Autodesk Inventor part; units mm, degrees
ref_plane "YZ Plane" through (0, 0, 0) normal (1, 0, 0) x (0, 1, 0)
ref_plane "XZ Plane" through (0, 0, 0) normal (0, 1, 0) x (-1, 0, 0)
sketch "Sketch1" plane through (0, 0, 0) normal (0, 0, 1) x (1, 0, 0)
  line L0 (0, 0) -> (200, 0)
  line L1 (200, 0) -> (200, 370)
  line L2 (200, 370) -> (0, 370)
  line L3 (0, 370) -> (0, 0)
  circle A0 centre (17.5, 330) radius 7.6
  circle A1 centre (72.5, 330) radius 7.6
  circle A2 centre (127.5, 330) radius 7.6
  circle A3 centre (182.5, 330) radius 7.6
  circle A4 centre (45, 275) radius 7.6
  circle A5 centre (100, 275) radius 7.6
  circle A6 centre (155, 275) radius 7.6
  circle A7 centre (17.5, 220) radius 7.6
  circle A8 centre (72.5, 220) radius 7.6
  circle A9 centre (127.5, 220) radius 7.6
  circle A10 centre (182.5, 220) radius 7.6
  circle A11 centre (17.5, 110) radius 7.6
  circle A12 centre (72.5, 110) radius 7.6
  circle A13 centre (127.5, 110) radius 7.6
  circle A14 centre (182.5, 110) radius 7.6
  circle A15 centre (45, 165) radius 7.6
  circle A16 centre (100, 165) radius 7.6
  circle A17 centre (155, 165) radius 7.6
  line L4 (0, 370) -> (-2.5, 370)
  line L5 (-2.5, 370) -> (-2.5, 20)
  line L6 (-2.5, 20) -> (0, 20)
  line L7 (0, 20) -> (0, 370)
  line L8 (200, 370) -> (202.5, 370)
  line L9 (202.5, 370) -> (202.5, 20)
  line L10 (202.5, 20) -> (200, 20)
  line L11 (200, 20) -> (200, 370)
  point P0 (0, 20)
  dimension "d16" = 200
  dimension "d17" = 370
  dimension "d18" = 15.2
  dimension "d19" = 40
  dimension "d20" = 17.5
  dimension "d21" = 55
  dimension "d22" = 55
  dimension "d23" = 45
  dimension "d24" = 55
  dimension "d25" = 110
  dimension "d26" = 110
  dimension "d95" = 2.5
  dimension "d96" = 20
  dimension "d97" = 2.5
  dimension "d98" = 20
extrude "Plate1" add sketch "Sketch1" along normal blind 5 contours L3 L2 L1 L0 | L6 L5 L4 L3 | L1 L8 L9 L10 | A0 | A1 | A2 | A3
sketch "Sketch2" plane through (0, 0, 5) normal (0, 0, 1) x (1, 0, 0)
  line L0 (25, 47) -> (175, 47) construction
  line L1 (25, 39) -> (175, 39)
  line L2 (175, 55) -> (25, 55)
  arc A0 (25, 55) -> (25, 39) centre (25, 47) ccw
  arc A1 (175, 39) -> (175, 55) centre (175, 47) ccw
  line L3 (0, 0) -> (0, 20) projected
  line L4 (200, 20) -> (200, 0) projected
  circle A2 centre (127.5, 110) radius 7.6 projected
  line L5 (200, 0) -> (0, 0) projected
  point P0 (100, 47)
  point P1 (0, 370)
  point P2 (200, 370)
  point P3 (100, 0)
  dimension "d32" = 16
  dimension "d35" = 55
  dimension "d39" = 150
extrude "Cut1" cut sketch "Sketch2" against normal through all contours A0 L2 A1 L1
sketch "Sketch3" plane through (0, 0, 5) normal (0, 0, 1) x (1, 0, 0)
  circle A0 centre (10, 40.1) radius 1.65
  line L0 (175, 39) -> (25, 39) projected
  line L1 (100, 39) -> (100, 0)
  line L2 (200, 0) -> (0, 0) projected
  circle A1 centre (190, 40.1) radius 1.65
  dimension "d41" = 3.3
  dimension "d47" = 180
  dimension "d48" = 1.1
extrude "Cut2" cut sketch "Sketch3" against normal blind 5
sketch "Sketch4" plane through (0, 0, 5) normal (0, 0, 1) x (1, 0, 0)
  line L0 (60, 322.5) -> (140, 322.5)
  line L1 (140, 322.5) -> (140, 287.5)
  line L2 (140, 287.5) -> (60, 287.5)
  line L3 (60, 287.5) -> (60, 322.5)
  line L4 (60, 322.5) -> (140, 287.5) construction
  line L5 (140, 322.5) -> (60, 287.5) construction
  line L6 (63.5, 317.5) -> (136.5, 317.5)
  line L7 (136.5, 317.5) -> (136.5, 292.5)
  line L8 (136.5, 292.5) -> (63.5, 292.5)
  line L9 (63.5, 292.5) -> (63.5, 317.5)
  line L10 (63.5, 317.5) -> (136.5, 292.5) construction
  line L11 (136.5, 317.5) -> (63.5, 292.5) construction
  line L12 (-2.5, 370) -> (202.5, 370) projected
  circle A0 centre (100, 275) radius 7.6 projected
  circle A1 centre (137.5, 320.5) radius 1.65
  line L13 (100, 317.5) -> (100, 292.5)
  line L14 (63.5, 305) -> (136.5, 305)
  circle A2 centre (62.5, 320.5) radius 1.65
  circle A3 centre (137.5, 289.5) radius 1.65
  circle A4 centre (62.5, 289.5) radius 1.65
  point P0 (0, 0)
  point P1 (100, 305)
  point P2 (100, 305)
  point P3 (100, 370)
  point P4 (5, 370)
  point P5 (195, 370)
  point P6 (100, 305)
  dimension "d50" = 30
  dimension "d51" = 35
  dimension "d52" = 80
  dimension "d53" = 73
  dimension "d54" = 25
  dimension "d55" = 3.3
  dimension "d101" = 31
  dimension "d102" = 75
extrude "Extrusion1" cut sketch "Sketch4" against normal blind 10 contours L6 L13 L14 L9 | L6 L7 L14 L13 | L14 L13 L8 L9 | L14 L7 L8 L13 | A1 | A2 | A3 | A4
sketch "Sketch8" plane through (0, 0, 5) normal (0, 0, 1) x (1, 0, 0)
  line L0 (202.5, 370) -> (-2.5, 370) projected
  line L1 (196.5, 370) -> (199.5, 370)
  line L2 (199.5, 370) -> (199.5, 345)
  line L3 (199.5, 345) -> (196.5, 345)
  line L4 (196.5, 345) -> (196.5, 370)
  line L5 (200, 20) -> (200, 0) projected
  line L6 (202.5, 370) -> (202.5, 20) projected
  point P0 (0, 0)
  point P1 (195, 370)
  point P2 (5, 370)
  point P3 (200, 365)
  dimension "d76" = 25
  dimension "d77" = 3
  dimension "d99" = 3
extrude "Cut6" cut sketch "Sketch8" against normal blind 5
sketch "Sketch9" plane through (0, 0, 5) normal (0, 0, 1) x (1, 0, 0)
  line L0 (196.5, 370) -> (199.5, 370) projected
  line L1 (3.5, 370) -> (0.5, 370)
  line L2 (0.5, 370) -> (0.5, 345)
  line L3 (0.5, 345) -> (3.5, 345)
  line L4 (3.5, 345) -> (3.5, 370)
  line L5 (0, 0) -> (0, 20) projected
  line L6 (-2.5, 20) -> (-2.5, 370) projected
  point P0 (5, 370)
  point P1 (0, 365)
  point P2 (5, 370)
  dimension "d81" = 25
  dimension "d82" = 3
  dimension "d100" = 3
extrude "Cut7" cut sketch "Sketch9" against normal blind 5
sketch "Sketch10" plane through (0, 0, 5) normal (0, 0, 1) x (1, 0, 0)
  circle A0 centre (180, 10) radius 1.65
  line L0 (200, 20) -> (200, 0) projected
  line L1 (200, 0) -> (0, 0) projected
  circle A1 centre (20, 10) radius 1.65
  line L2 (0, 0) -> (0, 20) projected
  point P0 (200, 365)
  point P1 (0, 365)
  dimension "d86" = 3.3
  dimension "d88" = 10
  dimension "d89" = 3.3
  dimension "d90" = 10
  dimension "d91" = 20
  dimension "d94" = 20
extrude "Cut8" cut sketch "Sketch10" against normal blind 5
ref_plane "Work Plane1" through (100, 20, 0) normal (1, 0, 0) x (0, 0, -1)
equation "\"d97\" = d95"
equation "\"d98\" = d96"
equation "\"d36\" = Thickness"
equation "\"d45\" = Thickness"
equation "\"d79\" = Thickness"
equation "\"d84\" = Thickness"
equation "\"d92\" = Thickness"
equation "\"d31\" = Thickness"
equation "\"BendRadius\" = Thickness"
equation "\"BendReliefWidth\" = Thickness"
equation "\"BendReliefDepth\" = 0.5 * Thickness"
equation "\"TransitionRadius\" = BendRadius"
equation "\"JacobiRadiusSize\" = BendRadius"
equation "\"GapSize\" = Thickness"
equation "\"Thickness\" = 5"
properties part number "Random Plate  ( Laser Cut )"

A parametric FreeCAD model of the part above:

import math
import FreeCAD as App
import Part
import Sketcher
from FreeCAD import Vector

doc = App.newDocument("Part")
body = doc.addObject("PartDesign::Body", "Body")

# Sketch on XY plane
sketch1 = body.newObject("Sketcher::SketchObject", "Sketch")
sketch1.AttachmentSupport = (doc.getObject("XY_Plane"), [""])
sketch1.MapMode = "FlatFace"
sketch1.addGeometry([
    Part.LineSegment(Vector(0, 20, 0), Vector(0, 0, 0)),  # 0
    Part.LineSegment(Vector(0, 0, 0), Vector(200, 0, 0)),  # 1
    Part.LineSegment(Vector(200, 0, 0), Vector(200, 20, 0)),  # 2
    Part.LineSegment(Vector(200, 20, 0), Vector(202.5, 20, 0)),  # 3
    Part.LineSegment(Vector(202.5, 20, 0), Vector(202.5, 370, 0)),  # 4
    Part.LineSegment(Vector(202.5, 370, 0), Vector(-2.5, 370, 0)),  # 5
    Part.LineSegment(Vector(-2.5, 370, 0), Vector(-2.5, 20, 0)),  # 6
    Part.LineSegment(Vector(-2.5, 20, 0), Vector(0, 20, 0)),  # 7
    Part.Circle(Vector(17.5, 110, 0), Vector(0, 0, 1), 7.6),  # 8
    Part.Circle(Vector(45, 165, 0), Vector(0, 0, 1), 7.6),  # 9
    Part.Circle(Vector(72.5, 110, 0), Vector(0, 0, 1), 7.6),  # 10
    Part.Circle(Vector(127.5, 110, 0), Vector(0, 0, 1), 7.6),  # 11
    Part.Circle(Vector(100, 165, 0), Vector(0, 0, 1), 7.6),  # 12
    Part.Circle(Vector(182.5, 110, 0), Vector(0, 0, 1), 7.6),  # 13
    Part.Circle(Vector(155, 165, 0), Vector(0, 0, 1), 7.6),  # 14
    Part.Circle(Vector(17.5, 220, 0), Vector(0, 0, 1), 7.6),  # 15
    Part.Circle(Vector(45, 275, 0), Vector(0, 0, 1), 7.6),  # 16
    Part.Circle(Vector(72.5, 220, 0), Vector(0, 0, 1), 7.6),  # 17
    Part.Circle(Vector(127.5, 220, 0), Vector(0, 0, 1), 7.6),  # 18
    Part.Circle(Vector(100, 275, 0), Vector(0, 0, 1), 7.6),  # 19
    Part.Circle(Vector(182.5, 220, 0), Vector(0, 0, 1), 7.6),  # 20
    Part.Circle(Vector(155, 275, 0), Vector(0, 0, 1), 7.6),  # 21
], False)
sketch1.addConstraint([
    Sketcher.Constraint("Coincident", 0, 2, 1, 1),
    Sketcher.Constraint("Coincident", 1, 2, 2, 1),
    Sketcher.Constraint("Coincident", 2, 2, 3, 1),
    Sketcher.Constraint("Coincident", 3, 2, 4, 1),
    Sketcher.Constraint("Coincident", 4, 2, 5, 1),
    Sketcher.Constraint("Coincident", 5, 2, 6, 1),
    Sketcher.Constraint("Coincident", 6, 2, 7, 1),
    Sketcher.Constraint("Coincident", 7, 2, 0, 1),
    Sketcher.Constraint("Vertical", 0),
    Sketcher.Constraint("Horizontal", 1),
    Sketcher.Constraint("Vertical", 2),
    Sketcher.Constraint("Horizontal", 3),
    Sketcher.Constraint("Vertical", 4),
    Sketcher.Constraint("Horizontal", 5),
    Sketcher.Constraint("Vertical", 6),
    Sketcher.Constraint("Horizontal", 7),
    Sketcher.Constraint("Coincident", 0, 2, -1, 1),
    Sketcher.Constraint("Equal", 8, 9),
    Sketcher.Constraint("Equal", 9, 10),
    Sketcher.Constraint("Equal", 10, 11),
    Sketcher.Constraint("Equal", 11, 12),
    Sketcher.Constraint("Equal", 12, 13),
    Sketcher.Constraint("Equal", 13, 14),
    Sketcher.Constraint("Equal", 14, 15),
    Sketcher.Constraint("Equal", 15, 16),
    Sketcher.Constraint("Equal", 16, 17),
    Sketcher.Constraint("Equal", 17, 18),
    Sketcher.Constraint("Equal", 18, 19),
    Sketcher.Constraint("Equal", 19, 20),
    Sketcher.Constraint("Equal", 20, 21),
    Sketcher.Constraint("Horizontal", 8, 3, 10, 3),
    Sketcher.Constraint("Horizontal", 10, 3, 11, 3),
    Sketcher.Constraint("Horizontal", 9, 3, 12, 3),
    Sketcher.Constraint("Horizontal", 11, 3, 13, 3),
    Sketcher.Constraint("Horizontal", 12, 3, 14, 3),
    Sketcher.Constraint("Horizontal", 15, 3, 17, 3),
    Sketcher.Constraint("Horizontal", 17, 3, 18, 3),
    Sketcher.Constraint("Horizontal", 16, 3, 19, 3),
    Sketcher.Constraint("Horizontal", 18, 3, 20, 3),
    Sketcher.Constraint("Horizontal", 19, 3, 21, 3),
    Sketcher.Constraint("Horizontal", 3, 2, 6, 2),
    Sketcher.Constraint("Vertical", 8, 3, 15, 3),
    Sketcher.Constraint("Vertical", 9, 3, 16, 3),
    Sketcher.Constraint("Vertical", 10, 3, 17, 3),
    Sketcher.Constraint("Vertical", 11, 3, 18, 3),
    Sketcher.Constraint("Vertical", 12, 3, 19, 3),
    Sketcher.Constraint("Vertical", 13, 3, 20, 3),
    Sketcher.Constraint("Vertical", 14, 3, 21, 3),
    Sketcher.Constraint("Equal", 3, 7),
    Sketcher.Constraint("Diameter", 8, 15.2),
    Sketcher.Constraint("DistanceX", 1, 1, 1, 2, 200.0),
    Sketcher.Constraint("DistanceY", 0, 2, 0, 1, 20.0),
    Sketcher.Constraint("DistanceX", 3, 1, 3, 2, 2.5),
    Sketcher.Constraint("DistanceY", -1, 1, 8, 3, 110.0),
    Sketcher.Constraint("DistanceX", -1, 1, 9, 3, 45.0),
    Sketcher.Constraint("DistanceY", -1, 1, 4, 2, 370.0),
    Sketcher.Constraint("DistanceY", 8, 3, 9, 3, 55.0),
    Sketcher.Constraint("DistanceX", 8, 3, 10, 3, 55.0),
    Sketcher.Constraint("DistanceX", 10, 3, 11, 3, 55.0),
    Sketcher.Constraint("DistanceX", 9, 3, 12, 3, 55.0),
    Sketcher.Constraint("DistanceX", 11, 3, 13, 3, 55.0),
    Sketcher.Constraint("DistanceX", 12, 3, 14, 3, 55.0),
    Sketcher.Constraint("DistanceY", 9, 3, 15, 3, 55.0),
    Sketcher.Constraint("DistanceY", 15, 3, 16, 3, 55.0),
    Sketcher.Constraint("DistanceX", 13, 3, 3, 2, 20.0),
])
pad1 = body.newObject("PartDesign::Pad", "Pad")
pad1.Profile = sketch1
pad1.Length = 5

# Sketch on XY plane
sketch2 = body.newObject("Sketcher::SketchObject", "Sketch001")
sketch2.AttachmentSupport = (doc.getObject("XY_Plane"), [""])
sketch2.MapMode = "FlatFace"
sketch2.AttachmentOffset = App.Placement(Vector(0, 0, 5), App.Rotation())
sketch2.addGeometry([
    Part.ArcOfCircle(Part.Circle(Vector(25, 47, 0), Vector(0, 0, 1), 8), math.radians(90), math.radians(270)),
    Part.LineSegment(Vector(25, 39, 0), Vector(175, 39, 0)),
    Part.ArcOfCircle(Part.Circle(Vector(175, 47, 0), Vector(0, 0, 1), 8), math.radians(-90), math.radians(90)),
    Part.LineSegment(Vector(175, 55, 0), Vector(25, 55, 0)),
], False)
sketch2.addConstraint([
    Sketcher.Constraint("Tangent", 0, 2, 1, 1),
    Sketcher.Constraint("Tangent", 1, 2, 2, 1),
    Sketcher.Constraint("Tangent", 2, 2, 3, 1),
    Sketcher.Constraint("Tangent", 3, 2, 0, 1),
    Sketcher.Constraint("Horizontal", 1),
    Sketcher.Constraint("Horizontal", 3),
    Sketcher.Constraint("Radius", 0, 8.0),
    Sketcher.Constraint("DistanceX", 1, 1, 1, 2, 150.0),
    Sketcher.Constraint("DistanceY", -1, 1, 2, 2, 55.0),
    Sketcher.Constraint("DistanceX", -1, 1, 0, 3, 25.0),
])
pocket1 = body.newObject("PartDesign::Pocket", "Pocket")
pocket1.Profile = sketch2
pocket1.Type = "ThroughAll"

# Sketch on XY plane
sketch3 = body.newObject("Sketcher::SketchObject", "Sketch002")
sketch3.AttachmentSupport = (doc.getObject("XY_Plane"), [""])
sketch3.MapMode = "FlatFace"
sketch3.AttachmentOffset = App.Placement(Vector(0, 0, 5), App.Rotation())
sketch3.addGeometry([
    Part.Circle(Vector(10, 40.1, 0), Vector(0, 0, 1), 1.6),
    Part.Circle(Vector(190, 40.1, 0), Vector(0, 0, 1), 1.6),
], False)
sketch3.addConstraint([
    Sketcher.Constraint("Equal", 0, 1),
    Sketcher.Constraint("Horizontal", 0, 3, 1, 3),
    Sketcher.Constraint("Diameter", 0, 3.3),
    Sketcher.Constraint("DistanceX", 0, 3, 1, 3, 180.0),
    Sketcher.Constraint("DistanceX", -1, 1, 0, 3, 10.0),
    Sketcher.Constraint("DistanceY", -1, 1, 0, 3, 40.1),
])
pocket2 = body.newObject("PartDesign::Pocket", "Pocket001")
pocket2.Profile = sketch3
pocket2.Length = 5

# Sketch on XY plane
sketch4 = body.newObject("Sketcher::SketchObject", "Sketch003")
sketch4.AttachmentSupport = (doc.getObject("XY_Plane"), [""])
sketch4.MapMode = "FlatFace"
sketch4.AttachmentOffset = App.Placement(Vector(0, 0, 5), App.Rotation())
sketch4.addGeometry([
    Part.LineSegment(Vector(63.5, 317.5, 0), Vector(63.5, 292.5, 0)),  # 0
    Part.LineSegment(Vector(63.5, 292.5, 0), Vector(136.5, 292.5, 0)),  # 1
    Part.LineSegment(Vector(136.5, 292.5, 0), Vector(136.5, 317.5, 0)),  # 2
    Part.LineSegment(Vector(136.5, 317.5, 0), Vector(63.5, 317.5, 0)),  # 3
    Part.Circle(Vector(137.5, 320.5, 0), Vector(0, 0, 1), 1.6),  # 4
    Part.Circle(Vector(62.5, 320.5, 0), Vector(0, 0, 1), 1.6),  # 5
    Part.Circle(Vector(137.5, 289.5, 0), Vector(0, 0, 1), 1.6),  # 6
    Part.Circle(Vector(62.5, 289.5, 0), Vector(0, 0, 1), 1.6),  # 7
], False)
sketch4.addConstraint([
    Sketcher.Constraint("Coincident", 0, 2, 1, 1),
    Sketcher.Constraint("Coincident", 1, 2, 2, 1),
    Sketcher.Constraint("Coincident", 2, 2, 3, 1),
    Sketcher.Constraint("Coincident", 3, 2, 0, 1),
    Sketcher.Constraint("Vertical", 0),
    Sketcher.Constraint("Horizontal", 1),
    Sketcher.Constraint("Vertical", 2),
    Sketcher.Constraint("Horizontal", 3),
    Sketcher.Constraint("Equal", 4, 5),
    Sketcher.Constraint("Equal", 5, 6),
    Sketcher.Constraint("Equal", 6, 7),
    Sketcher.Constraint("Horizontal", 4, 3, 5, 3),
    Sketcher.Constraint("Horizontal", 6, 3, 7, 3),
    Sketcher.Constraint("Vertical", 4, 3, 6, 3),
    Sketcher.Constraint("Vertical", 5, 3, 7, 3),
    Sketcher.Constraint("Diameter", 4, 3.3),
    Sketcher.Constraint("DistanceX", 1, 1, 1, 2, 73.0),
    Sketcher.Constraint("DistanceY", 0, 2, 0, 1, 25.0),
    Sketcher.Constraint("DistanceX", 5, 3, 4, 3, 75.0),
    Sketcher.Constraint("DistanceY", 6, 3, 4, 3, 31.0),
    Sketcher.Constraint("DistanceX", 7, 3, 0, 2, 1.0),
    Sketcher.Constraint("DistanceY", 7, 3, 0, 2, 3.0),
    Sketcher.Constraint("DistanceX", -1, 1, 4, 3, 137.5),
    Sketcher.Constraint("DistanceY", -1, 1, 4, 3, 320.5),
])
pocket3 = body.newObject("PartDesign::Pocket", "Pocket002")
pocket3.Profile = sketch4
pocket3.Length = 10

# Sketch on XY plane
sketch5 = body.newObject("Sketcher::SketchObject", "Sketch004")
sketch5.AttachmentSupport = (doc.getObject("XY_Plane"), [""])
sketch5.MapMode = "FlatFace"
sketch5.AttachmentOffset = App.Placement(Vector(0, 0, 5), App.Rotation())
sketch5.addGeometry([
    Part.LineSegment(Vector(199.5, 345, 0), Vector(199.5, 370, 0)),
    Part.LineSegment(Vector(199.5, 370, 0), Vector(196.5, 370, 0)),
    Part.LineSegment(Vector(196.5, 370, 0), Vector(196.5, 345, 0)),
    Part.LineSegment(Vector(196.5, 345, 0), Vector(199.5, 345, 0)),
], False)
sketch5.addConstraint([
    Sketcher.Constraint("Coincident", 0, 2, 1, 1),
    Sketcher.Constraint("Coincident", 1, 2, 2, 1),
    Sketcher.Constraint("Coincident", 2, 2, 3, 1),
    Sketcher.Constraint("Coincident", 3, 2, 0, 1),
    Sketcher.Constraint("Vertical", 0),
    Sketcher.Constraint("Horizontal", 1),
    Sketcher.Constraint("Vertical", 2),
    Sketcher.Constraint("Horizontal", 3),
    Sketcher.Constraint("DistanceX", 1, 2, 1, 1, 3.0),
    Sketcher.Constraint("DistanceY", 0, 1, 0, 2, 25.0),
    Sketcher.Constraint("DistanceY", -1, 1, 0, 2, 370.0),
    Sketcher.Constraint("DistanceX", -1, 1, 0, 2, 199.5),
])
pocket4 = body.newObject("PartDesign::Pocket", "Pocket003")
pocket4.Profile = sketch5
pocket4.Length = 5

# Sketch on XY plane
sketch6 = body.newObject("Sketcher::SketchObject", "Sketch005")
sketch6.AttachmentSupport = (doc.getObject("XY_Plane"), [""])
sketch6.MapMode = "FlatFace"
sketch6.AttachmentOffset = App.Placement(Vector(0, 0, 5), App.Rotation())
sketch6.addGeometry([
    Part.LineSegment(Vector(3.5, 345, 0), Vector(3.5, 370, 0)),
    Part.LineSegment(Vector(3.5, 370, 0), Vector(0.5, 370, 0)),
    Part.LineSegment(Vector(0.5, 370, 0), Vector(0.5, 345, 0)),
    Part.LineSegment(Vector(0.5, 345, 0), Vector(3.5, 345, 0)),
], False)
sketch6.addConstraint([
    Sketcher.Constraint("Coincident", 0, 2, 1, 1),
    Sketcher.Constraint("Coincident", 1, 2, 2, 1),
    Sketcher.Constraint("Coincident", 2, 2, 3, 1),
    Sketcher.Constraint("Coincident", 3, 2, 0, 1),
    Sketcher.Constraint("Vertical", 0),
    Sketcher.Constraint("Horizontal", 1),
    Sketcher.Constraint("Vertical", 2),
    Sketcher.Constraint("Horizontal", 3),
    Sketcher.Constraint("DistanceX", 1, 2, 1, 1, 3.0),
    Sketcher.Constraint("DistanceY", 0, 1, 0, 2, 25.0),
    Sketcher.Constraint("DistanceY", -1, 1, 0, 2, 370.0),
    Sketcher.Constraint("DistanceX", -1, 1, 0, 2, 3.5),
])
pocket5 = body.newObject("PartDesign::Pocket", "Pocket004")
pocket5.Profile = sketch6
pocket5.Length = 5

# Sketch on XY plane
sketch7 = body.newObject("Sketcher::SketchObject", "Sketch006")
sketch7.AttachmentSupport = (doc.getObject("XY_Plane"), [""])
sketch7.MapMode = "FlatFace"
sketch7.AttachmentOffset = App.Placement(Vector(0, 0, 5), App.Rotation())
sketch7.addGeometry([
    Part.Circle(Vector(180, 10, 0), Vector(0, 0, 1), 1.6),
    Part.Circle(Vector(20, 10, 0), Vector(0, 0, 1), 1.6),
], False)
sketch7.addConstraint([
    Sketcher.Constraint("Equal", 0, 1),
    Sketcher.Constraint("Horizontal", 0, 3, 1, 3),
    Sketcher.Constraint("Diameter", 0, 3.3),
    Sketcher.Constraint("DistanceY", -1, 1, 0, 3, 10.0),
    Sketcher.Constraint("DistanceX", -1, 1, 1, 3, 20.0),
    Sketcher.Constraint("DistanceX", -1, 1, 0, 3, 180.0),
])
pocket6 = body.newObject("PartDesign::Pocket", "Pocket005")
pocket6.Profile = sketch7
pocket6.Length = 5

doc.recompute()
